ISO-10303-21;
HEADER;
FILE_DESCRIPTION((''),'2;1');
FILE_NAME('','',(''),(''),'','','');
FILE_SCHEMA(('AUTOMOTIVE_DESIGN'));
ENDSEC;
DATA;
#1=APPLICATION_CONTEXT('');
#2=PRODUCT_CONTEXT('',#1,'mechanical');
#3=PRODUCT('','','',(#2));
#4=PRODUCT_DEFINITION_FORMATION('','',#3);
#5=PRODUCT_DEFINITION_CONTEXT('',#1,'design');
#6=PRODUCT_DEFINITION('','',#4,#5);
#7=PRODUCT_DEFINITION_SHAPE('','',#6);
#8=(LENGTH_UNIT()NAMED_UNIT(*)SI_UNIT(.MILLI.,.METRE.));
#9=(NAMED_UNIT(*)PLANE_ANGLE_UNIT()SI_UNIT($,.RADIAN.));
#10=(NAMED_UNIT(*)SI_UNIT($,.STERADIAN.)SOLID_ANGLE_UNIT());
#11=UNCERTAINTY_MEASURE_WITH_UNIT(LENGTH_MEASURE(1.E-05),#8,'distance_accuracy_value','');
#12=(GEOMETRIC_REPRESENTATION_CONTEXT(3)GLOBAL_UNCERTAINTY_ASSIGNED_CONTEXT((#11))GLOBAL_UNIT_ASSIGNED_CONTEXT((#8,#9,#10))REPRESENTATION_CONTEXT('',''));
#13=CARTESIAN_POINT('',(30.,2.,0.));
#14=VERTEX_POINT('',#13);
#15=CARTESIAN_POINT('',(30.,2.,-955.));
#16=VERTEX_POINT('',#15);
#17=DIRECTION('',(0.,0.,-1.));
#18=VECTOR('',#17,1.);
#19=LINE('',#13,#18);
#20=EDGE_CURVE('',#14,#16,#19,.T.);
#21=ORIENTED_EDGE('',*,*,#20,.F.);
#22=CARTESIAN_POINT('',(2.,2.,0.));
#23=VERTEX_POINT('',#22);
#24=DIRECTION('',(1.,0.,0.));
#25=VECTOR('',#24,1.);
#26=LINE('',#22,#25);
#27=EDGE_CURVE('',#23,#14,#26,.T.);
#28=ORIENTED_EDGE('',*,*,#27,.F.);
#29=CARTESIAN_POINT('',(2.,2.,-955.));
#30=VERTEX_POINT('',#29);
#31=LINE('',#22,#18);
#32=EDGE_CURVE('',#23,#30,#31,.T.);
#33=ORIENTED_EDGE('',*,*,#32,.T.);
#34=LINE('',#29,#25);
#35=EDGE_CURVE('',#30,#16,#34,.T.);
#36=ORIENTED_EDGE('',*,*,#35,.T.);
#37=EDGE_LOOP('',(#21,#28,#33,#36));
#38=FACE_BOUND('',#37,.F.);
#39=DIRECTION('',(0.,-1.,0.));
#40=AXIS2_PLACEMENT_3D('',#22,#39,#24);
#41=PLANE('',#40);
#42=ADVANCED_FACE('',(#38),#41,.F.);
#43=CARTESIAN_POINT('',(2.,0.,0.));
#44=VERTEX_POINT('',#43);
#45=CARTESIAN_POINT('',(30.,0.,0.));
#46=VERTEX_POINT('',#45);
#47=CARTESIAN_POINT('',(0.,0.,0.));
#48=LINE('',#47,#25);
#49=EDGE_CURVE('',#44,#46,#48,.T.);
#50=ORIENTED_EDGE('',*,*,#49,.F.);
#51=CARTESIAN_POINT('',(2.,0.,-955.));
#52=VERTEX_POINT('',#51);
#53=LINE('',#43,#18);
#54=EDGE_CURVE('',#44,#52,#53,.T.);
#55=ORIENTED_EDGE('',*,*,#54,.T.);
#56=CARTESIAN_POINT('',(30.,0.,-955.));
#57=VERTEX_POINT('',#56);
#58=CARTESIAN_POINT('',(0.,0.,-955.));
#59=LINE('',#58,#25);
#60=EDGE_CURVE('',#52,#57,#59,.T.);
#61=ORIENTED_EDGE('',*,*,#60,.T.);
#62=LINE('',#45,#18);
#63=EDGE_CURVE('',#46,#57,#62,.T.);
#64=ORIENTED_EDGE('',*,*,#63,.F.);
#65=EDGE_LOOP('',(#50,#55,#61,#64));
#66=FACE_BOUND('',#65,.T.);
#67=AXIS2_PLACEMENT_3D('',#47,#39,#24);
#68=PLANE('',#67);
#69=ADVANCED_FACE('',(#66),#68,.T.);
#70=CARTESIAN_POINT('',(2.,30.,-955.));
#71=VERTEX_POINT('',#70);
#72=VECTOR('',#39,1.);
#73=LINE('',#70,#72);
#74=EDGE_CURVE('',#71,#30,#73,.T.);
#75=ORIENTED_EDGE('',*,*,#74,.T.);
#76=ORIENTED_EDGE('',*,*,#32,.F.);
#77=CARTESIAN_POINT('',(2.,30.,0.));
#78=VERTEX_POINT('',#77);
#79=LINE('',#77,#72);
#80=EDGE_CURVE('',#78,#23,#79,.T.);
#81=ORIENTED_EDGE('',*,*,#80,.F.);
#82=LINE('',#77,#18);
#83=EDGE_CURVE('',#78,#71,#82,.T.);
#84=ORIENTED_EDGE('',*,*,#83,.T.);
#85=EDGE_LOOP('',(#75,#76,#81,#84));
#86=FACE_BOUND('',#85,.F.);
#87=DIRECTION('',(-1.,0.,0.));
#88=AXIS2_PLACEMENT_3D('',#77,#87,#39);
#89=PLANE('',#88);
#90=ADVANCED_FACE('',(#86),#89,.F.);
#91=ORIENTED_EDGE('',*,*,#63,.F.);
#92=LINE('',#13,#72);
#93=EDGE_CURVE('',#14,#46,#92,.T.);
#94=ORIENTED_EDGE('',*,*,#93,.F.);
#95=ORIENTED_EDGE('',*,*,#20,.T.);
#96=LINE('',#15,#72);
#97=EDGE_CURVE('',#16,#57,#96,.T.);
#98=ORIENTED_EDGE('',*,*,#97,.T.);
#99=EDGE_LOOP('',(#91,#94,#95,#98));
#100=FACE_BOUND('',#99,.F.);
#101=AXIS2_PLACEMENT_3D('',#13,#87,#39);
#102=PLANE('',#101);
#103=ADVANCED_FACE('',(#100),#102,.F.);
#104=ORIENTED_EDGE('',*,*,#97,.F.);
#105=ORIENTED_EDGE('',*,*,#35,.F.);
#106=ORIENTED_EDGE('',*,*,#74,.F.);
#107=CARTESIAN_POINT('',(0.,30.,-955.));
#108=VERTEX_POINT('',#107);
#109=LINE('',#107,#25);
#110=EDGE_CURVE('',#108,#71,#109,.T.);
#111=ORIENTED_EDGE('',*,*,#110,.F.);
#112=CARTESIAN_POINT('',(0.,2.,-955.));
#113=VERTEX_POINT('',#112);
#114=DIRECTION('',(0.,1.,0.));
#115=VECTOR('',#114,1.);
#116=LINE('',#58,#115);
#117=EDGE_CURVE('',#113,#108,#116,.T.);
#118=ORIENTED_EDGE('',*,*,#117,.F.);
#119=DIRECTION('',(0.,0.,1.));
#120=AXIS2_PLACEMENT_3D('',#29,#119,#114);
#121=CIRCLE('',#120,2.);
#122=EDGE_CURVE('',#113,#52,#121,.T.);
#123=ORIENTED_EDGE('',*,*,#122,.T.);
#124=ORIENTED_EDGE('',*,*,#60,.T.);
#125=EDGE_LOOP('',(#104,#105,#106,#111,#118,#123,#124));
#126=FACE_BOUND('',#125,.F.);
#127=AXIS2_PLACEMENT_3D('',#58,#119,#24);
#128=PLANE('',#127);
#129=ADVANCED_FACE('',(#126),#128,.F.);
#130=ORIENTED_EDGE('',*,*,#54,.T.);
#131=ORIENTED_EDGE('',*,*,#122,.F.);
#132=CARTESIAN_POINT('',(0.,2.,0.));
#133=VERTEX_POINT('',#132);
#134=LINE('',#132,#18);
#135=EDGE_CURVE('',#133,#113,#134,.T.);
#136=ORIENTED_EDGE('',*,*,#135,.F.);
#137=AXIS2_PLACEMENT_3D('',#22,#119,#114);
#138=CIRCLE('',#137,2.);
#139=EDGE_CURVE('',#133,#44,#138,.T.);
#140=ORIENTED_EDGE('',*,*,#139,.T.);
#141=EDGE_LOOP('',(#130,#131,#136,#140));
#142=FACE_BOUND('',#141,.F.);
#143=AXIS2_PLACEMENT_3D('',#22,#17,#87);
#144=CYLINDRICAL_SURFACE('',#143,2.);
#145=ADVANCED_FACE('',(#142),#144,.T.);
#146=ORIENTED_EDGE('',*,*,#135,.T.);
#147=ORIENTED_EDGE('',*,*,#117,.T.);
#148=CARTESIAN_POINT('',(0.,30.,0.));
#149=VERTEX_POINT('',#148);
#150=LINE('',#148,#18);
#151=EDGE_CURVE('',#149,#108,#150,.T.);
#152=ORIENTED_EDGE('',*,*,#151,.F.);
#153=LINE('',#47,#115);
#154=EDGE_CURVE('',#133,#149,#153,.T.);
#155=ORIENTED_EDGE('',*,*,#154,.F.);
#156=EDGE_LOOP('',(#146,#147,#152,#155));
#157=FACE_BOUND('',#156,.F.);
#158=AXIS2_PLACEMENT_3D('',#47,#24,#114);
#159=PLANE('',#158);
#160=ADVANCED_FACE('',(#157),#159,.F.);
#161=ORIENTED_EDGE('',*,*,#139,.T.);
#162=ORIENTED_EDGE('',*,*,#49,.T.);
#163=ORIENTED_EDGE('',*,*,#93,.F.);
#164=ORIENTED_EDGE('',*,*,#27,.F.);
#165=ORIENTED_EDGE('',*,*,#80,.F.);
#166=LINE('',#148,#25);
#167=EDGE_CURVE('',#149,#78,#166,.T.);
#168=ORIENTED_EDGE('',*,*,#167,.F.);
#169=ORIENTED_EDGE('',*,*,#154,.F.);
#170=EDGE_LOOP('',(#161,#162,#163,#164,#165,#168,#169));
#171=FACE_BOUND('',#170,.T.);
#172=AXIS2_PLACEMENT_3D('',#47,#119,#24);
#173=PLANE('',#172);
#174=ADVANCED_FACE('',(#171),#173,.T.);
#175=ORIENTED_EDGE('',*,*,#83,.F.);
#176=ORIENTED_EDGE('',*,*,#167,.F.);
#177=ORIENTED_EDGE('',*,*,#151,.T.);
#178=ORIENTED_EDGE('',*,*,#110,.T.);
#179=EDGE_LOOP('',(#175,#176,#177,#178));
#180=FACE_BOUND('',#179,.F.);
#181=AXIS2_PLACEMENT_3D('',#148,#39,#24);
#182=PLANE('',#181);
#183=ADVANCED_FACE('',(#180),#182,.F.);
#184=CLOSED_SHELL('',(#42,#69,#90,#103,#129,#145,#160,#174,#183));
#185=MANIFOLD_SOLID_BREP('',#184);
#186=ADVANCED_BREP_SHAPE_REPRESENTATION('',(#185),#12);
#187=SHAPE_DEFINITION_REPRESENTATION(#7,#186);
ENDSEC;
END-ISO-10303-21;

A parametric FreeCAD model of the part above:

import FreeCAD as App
import Part
import Sketcher

V = App.Vector
Q = App.Units.Quantity


def edges_at(feature, points):
    """Names of the edges that pass closest to the given points."""
    edges = feature.Shape.Edges
    near = lambda p: min(range(len(edges)), key=lambda i: edges[i].distToShape(Part.Vertex(*p))[0])
    return sorted({f"Edge{near(p) + 1}" for p in points})

doc = App.newDocument("Part")
body = doc.addObject("PartDesign::Body", "Body")

sketch1 = doc.addObject("Sketcher::SketchObject", "Sketch")
body.addObject(sketch1)
sketch1.AttachmentSupport = (doc.XY_Plane, [""])
sketch1.MapMode = "FlatFace"
sketch1.addGeometry(Part.LineSegment(V(0, 30, 0), V(0, 0, 0)), False)
sketch1.addGeometry(Part.LineSegment(V(0, 0, 0), V(30, 0, 0)), False)
sketch1.addGeometry(Part.LineSegment(V(30, 0, 0), V(30, 2, 0)), False)
sketch1.addGeometry(Part.LineSegment(V(30, 2, 0), V(2, 2, 0)), False)
sketch1.addGeometry(Part.LineSegment(V(2, 2, 0), V(2, 30, 0)), False)
sketch1.addGeometry(Part.LineSegment(V(2, 30, 0), V(0, 30, 0)), False)
sketch1.addConstraint(Sketcher.Constraint("Coincident", 0, 2, 1, 1))
sketch1.addConstraint(Sketcher.Constraint("Coincident", 1, 2, 2, 1))
sketch1.addConstraint(Sketcher.Constraint("Coincident", 2, 2, 3, 1))
sketch1.addConstraint(Sketcher.Constraint("Coincident", 3, 2, 4, 1))
sketch1.addConstraint(Sketcher.Constraint("Coincident", 4, 2, 5, 1))
sketch1.addConstraint(Sketcher.Constraint("Coincident", 5, 2, 0, 1))
sketch1.addConstraint(Sketcher.Constraint("Vertical", 0))
sketch1.addConstraint(Sketcher.Constraint("Horizontal", 1))
sketch1.addConstraint(Sketcher.Constraint("Vertical", 2))
sketch1.addConstraint(Sketcher.Constraint("Horizontal", 3))
sketch1.addConstraint(Sketcher.Constraint("Vertical", 4))
sketch1.addConstraint(Sketcher.Constraint("Horizontal", 5))
sketch1.addConstraint(Sketcher.Constraint("Coincident", 0, 2, -1, 1))
sketch1.addConstraint(Sketcher.Constraint("Equal", 1, 0))
sketch1.addConstraint(Sketcher.Constraint("Equal", 5, 2))
sketch1.addConstraint(Sketcher.Constraint("DistanceX", 1, 1, 1, 2, Q("30 mm")))
sketch1.addConstraint(Sketcher.Constraint("DistanceX", 5, 2, 5, 1, Q("2 mm")))
pad1 = doc.addObject("PartDesign::Pad", "Pad")
body.addObject(pad1)
pad1.Profile = sketch1
pad1.Length = 955
pad1.Reversed = True
doc.recompute()

fillet = doc.addObject("PartDesign::Fillet", "Fillet")
body.addObject(fillet)
fillet.Base = (pad1, edges_at(pad1, [(0, 0, -477.5)]))
fillet.Radius = 2

doc.recompute()
